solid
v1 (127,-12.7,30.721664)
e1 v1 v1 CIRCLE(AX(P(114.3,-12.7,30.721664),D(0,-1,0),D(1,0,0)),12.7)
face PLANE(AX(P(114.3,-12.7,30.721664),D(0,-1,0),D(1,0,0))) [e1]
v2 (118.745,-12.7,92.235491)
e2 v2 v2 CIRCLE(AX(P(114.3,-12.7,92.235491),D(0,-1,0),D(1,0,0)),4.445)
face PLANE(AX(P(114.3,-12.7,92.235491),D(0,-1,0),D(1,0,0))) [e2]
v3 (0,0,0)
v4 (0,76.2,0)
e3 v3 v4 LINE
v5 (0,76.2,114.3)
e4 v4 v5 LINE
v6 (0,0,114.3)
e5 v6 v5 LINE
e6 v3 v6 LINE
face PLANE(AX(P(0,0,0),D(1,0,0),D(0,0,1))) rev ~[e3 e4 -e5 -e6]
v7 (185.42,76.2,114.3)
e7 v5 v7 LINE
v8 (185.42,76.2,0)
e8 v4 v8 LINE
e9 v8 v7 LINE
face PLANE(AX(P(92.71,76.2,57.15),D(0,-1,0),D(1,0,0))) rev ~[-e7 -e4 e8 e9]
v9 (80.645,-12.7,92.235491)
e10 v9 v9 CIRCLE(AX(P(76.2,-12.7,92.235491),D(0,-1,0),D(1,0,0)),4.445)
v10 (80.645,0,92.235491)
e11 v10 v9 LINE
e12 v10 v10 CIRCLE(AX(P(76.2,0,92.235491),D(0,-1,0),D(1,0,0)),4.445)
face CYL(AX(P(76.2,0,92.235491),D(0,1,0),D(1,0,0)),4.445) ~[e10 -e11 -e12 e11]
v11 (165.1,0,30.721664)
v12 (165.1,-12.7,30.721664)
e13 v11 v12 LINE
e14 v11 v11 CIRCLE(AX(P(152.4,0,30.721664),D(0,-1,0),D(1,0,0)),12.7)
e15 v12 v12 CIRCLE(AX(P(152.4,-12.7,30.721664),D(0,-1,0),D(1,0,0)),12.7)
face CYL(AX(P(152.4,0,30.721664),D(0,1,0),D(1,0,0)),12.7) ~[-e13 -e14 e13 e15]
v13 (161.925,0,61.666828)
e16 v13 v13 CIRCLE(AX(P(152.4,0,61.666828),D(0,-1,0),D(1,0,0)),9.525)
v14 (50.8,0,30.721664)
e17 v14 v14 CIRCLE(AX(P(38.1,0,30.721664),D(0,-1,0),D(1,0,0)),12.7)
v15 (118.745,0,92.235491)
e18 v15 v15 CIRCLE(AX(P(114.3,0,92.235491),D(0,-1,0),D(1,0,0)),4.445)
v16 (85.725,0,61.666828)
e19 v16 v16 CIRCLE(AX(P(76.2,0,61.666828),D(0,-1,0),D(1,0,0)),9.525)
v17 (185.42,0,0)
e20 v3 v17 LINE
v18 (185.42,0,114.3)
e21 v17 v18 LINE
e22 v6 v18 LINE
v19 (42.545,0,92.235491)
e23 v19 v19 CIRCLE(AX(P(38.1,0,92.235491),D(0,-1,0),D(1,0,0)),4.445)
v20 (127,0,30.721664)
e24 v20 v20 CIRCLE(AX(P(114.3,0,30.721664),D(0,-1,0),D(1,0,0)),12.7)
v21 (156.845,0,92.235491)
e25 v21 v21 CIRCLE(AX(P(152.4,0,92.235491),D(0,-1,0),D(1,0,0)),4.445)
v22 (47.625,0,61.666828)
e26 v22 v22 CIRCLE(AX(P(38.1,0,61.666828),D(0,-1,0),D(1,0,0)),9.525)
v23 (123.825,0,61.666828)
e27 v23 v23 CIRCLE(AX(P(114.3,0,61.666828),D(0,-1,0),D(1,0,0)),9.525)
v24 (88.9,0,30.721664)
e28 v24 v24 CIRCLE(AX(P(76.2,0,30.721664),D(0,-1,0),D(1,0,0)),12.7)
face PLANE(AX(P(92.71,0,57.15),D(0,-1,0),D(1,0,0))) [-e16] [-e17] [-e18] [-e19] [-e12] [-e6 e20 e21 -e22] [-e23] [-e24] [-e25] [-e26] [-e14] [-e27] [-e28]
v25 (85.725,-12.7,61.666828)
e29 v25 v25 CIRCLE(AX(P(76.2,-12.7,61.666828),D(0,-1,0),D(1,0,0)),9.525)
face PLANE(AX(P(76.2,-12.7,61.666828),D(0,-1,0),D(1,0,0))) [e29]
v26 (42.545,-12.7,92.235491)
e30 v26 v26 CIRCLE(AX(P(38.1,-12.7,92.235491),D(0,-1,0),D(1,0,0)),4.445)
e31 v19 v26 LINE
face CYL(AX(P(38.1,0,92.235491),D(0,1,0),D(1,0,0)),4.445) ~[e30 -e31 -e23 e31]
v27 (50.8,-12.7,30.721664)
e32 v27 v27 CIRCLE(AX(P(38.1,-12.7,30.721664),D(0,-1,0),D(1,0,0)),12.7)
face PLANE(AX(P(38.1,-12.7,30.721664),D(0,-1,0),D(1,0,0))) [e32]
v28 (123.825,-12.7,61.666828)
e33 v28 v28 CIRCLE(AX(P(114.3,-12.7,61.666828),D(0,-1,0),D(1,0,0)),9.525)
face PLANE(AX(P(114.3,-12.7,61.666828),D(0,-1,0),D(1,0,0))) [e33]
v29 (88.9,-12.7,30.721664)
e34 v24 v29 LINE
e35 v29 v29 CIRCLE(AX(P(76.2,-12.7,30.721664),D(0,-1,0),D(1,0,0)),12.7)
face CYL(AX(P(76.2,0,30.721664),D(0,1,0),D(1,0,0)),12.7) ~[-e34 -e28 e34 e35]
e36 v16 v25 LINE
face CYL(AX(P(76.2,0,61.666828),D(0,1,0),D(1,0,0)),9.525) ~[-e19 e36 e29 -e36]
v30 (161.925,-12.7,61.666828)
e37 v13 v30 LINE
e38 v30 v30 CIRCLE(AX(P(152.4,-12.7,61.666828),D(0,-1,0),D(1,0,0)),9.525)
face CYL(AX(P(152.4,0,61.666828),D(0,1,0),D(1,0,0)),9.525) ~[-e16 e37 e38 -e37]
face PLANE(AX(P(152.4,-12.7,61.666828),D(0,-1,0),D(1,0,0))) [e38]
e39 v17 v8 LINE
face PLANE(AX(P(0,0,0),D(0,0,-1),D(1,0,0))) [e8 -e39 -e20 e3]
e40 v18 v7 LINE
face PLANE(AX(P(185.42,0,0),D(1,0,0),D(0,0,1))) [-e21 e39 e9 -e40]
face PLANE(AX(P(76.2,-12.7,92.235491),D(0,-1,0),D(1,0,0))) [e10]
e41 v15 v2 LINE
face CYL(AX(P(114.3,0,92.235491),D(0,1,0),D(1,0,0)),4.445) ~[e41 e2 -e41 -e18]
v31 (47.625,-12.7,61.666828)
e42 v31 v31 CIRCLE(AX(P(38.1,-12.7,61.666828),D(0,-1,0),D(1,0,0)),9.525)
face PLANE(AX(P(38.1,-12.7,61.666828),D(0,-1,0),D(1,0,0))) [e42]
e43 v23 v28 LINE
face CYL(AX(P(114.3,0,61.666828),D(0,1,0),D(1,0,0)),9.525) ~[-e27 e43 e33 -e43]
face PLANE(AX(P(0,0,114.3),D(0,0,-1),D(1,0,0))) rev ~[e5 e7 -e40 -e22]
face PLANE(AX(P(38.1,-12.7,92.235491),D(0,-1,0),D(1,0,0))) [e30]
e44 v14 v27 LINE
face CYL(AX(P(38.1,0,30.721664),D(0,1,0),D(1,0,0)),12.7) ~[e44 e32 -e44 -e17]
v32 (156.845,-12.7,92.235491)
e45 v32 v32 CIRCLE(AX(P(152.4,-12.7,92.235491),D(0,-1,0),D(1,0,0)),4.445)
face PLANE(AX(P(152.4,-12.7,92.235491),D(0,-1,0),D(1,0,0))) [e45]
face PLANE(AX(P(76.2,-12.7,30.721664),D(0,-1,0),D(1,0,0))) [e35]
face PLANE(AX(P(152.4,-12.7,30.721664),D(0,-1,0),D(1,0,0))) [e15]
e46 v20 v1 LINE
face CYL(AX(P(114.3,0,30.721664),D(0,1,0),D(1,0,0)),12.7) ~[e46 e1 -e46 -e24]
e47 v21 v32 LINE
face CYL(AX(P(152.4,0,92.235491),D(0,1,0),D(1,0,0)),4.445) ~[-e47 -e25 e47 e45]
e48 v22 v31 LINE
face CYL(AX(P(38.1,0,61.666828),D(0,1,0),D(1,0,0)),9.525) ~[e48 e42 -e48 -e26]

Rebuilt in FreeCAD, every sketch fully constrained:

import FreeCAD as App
import Part
import Sketcher
from FreeCAD import Vector
Q = App.Units.Quantity


def add_polygon(sketch, points):
    """Adds a closed chain of lines whose ends are joined by coincident constraints."""
    first, n = sketch.GeometryCount, len(points)
    for a, b in zip(points, points[1:] + points[:1]):
        sketch.addGeometry(Part.LineSegment(App.Vector(*a, 0), App.Vector(*b, 0)), False)
    for i in range(n):
        sketch.addConstraint(Sketcher.Constraint("Coincident", first + i, 2, first + (i + 1) % n, 1))

doc = App.newDocument("Part")
body = doc.addObject("PartDesign::Body", "Body")

sketch1 = body.newObject("Sketcher::SketchObject", "Sketch")
sketch1.AttachmentSupport = (doc.getObject("XZ_Plane"), [""])
sketch1.MapMode = "FlatFace"
add_polygon(sketch1, [(0, 114), (0, 0), (185, 0), (185, 114)])
sketch1.addConstraint(Sketcher.Constraint("Vertical", 0))
sketch1.addConstraint(Sketcher.Constraint("Horizontal", 1))
sketch1.addConstraint(Sketcher.Constraint("Vertical", 2))
sketch1.addConstraint(Sketcher.Constraint("Horizontal", 3))
sketch1.addConstraint(Sketcher.Constraint("Coincident", 0, 2, -1, 1))
sketch1.addConstraint(Sketcher.Constraint("DistanceX", 1, 1, 1, 2, Q("7.3 in")))
sketch1.addConstraint(Sketcher.Constraint("DistanceY", 0, 2, 0, 1, Q("4.5 in")))
pad1 = body.newObject("PartDesign::Pad", "Pad")
pad1.Profile = sketch1
pad1.Length = Q("3 in")
pad1.Reversed = True

sketch2 = body.newObject("Sketcher::SketchObject", "Sketch001")
sketch2.AttachmentSupport = (doc.getObject("XZ_Plane"), [""])
sketch2.MapMode = "FlatFace"
sketch2.addGeometry(Part.Circle(Vector(38.1, 92.2, 0), Vector(0, 0, 1), 4.4), False)
sketch2.addGeometry(Part.Circle(Vector(38.1, 61.7, 0), Vector(0, 0, 1), 9.5), False)
sketch2.addGeometry(Part.Circle(Vector(38.1, 30.7, 0), Vector(0, 0, 1), 12.7), False)
sketch2.addGeometry(Part.Circle(Vector(76.2, 92.2, 0), Vector(0, 0, 1), 4.4), False)
sketch2.addGeometry(Part.Circle(Vector(76.2, 61.7, 0), Vector(0, 0, 1), 9.5), False)
sketch2.addGeometry(Part.Circle(Vector(76.2, 30.7, 0), Vector(0, 0, 1), 12.7), False)
sketch2.addGeometry(Part.Circle(Vector(114.3, 92.2, 0), Vector(0, 0, 1), 4.4), False)
sketch2.addGeometry(Part.Circle(Vector(114.3, 61.7, 0), Vector(0, 0, 1), 9.5), False)
sketch2.addGeometry(Part.Circle(Vector(114.3, 30.7, 0), Vector(0, 0, 1), 12.7), False)
sketch2.addGeometry(Part.Circle(Vector(152.4, 92.2, 0), Vector(0, 0, 1), 4.4), False)
sketch2.addGeometry(Part.Circle(Vector(152.4, 61.7, 0), Vector(0, 0, 1), 9.5), False)
sketch2.addGeometry(Part.Circle(Vector(152.4, 30.7, 0), Vector(0, 0, 1), 12.7), False)
sketch2.addConstraint(Sketcher.Constraint("Equal", 0, 3))
sketch2.addConstraint(Sketcher.Constraint("Equal", 1, 4))
sketch2.addConstraint(Sketcher.Constraint("Equal", 2, 5))
sketch2.addConstraint(Sketcher.Constraint("Equal", 3, 6))
sketch2.addConstraint(Sketcher.Constraint("Equal", 4, 7))
sketch2.addConstraint(Sketcher.Constraint("Equal", 5, 8))
sketch2.addConstraint(Sketcher.Constraint("Equal", 6, 9))
sketch2.addConstraint(Sketcher.Constraint("Equal", 7, 10))
sketch2.addConstraint(Sketcher.Constraint("Equal", 8, 11))
sketch2.addConstraint(Sketcher.Constraint("Horizontal", 0, 3, 3, 3))
sketch2.addConstraint(Sketcher.Constraint("Horizontal", 1, 3, 4, 3))
sketch2.addConstraint(Sketcher.Constraint("Horizontal", 2, 3, 5, 3))
sketch2.addConstraint(Sketcher.Constraint("Horizontal", 3, 3, 6, 3))
sketch2.addConstraint(Sketcher.Constraint("Horizontal", 4, 3, 7, 3))
sketch2.addConstraint(Sketcher.Constraint("Horizontal", 5, 3, 8, 3))
sketch2.addConstraint(Sketcher.Constraint("Horizontal", 6, 3, 9, 3))
sketch2.addConstraint(Sketcher.Constraint("Horizontal", 7, 3, 10, 3))
sketch2.addConstraint(Sketcher.Constraint("Horizontal", 8, 3, 11, 3))
sketch2.addConstraint(Sketcher.Constraint("Vertical", 0, 3, 1, 3))
sketch2.addConstraint(Sketcher.Constraint("Vertical", 1, 3, 2, 3))
sketch2.addConstraint(Sketcher.Constraint("Vertical", 3, 3, 4, 3))
sketch2.addConstraint(Sketcher.Constraint("Vertical", 4, 3, 5, 3))
sketch2.addConstraint(Sketcher.Constraint("Vertical", 6, 3, 7, 3))
sketch2.addConstraint(Sketcher.Constraint("Vertical", 7, 3, 8, 3))
sketch2.addConstraint(Sketcher.Constraint("Vertical", 9, 3, 10, 3))
sketch2.addConstraint(Sketcher.Constraint("Vertical", 10, 3, 11, 3))
sketch2.addConstraint(Sketcher.Constraint("Diameter", 2, Q("1 in")))
sketch2.addConstraint(Sketcher.Constraint("Diameter", 0, Q("0.35 in")))
sketch2.addConstraint(Sketcher.Constraint("Diameter", 1, Q("0.75 in")))
sketch2.addConstraint(Sketcher.Constraint("DistanceX", -1, 1, 3, 3, Q("3 in")))
sketch2.addConstraint(Sketcher.Constraint("DistanceX", -1, 1, 9, 3, Q("6 in")))
sketch2.addConstraint(Sketcher.Constraint("DistanceX", 0, 3, 6, 3, Q("3 in")))
sketch2.addConstraint(Sketcher.Constraint("DistanceX", -1, 1, 0, 3, Q("1.5 in")))
sketch2.addConstraint(Sketcher.Constraint("DistanceY", -1, 1, 0, 3, 92.235491))
sketch2.addConstraint(Sketcher.Constraint("DistanceY", -1, 1, 1, 3, 61.666828))
sketch2.addConstraint(Sketcher.Constraint("DistanceY", -1, 1, 2, 3, 30.721664))
pad2 = body.newObject("PartDesign::Pad", "Pad001")
pad2.Profile = sketch2
pad2.Length = Q("0.5 in")

doc.recompute()
